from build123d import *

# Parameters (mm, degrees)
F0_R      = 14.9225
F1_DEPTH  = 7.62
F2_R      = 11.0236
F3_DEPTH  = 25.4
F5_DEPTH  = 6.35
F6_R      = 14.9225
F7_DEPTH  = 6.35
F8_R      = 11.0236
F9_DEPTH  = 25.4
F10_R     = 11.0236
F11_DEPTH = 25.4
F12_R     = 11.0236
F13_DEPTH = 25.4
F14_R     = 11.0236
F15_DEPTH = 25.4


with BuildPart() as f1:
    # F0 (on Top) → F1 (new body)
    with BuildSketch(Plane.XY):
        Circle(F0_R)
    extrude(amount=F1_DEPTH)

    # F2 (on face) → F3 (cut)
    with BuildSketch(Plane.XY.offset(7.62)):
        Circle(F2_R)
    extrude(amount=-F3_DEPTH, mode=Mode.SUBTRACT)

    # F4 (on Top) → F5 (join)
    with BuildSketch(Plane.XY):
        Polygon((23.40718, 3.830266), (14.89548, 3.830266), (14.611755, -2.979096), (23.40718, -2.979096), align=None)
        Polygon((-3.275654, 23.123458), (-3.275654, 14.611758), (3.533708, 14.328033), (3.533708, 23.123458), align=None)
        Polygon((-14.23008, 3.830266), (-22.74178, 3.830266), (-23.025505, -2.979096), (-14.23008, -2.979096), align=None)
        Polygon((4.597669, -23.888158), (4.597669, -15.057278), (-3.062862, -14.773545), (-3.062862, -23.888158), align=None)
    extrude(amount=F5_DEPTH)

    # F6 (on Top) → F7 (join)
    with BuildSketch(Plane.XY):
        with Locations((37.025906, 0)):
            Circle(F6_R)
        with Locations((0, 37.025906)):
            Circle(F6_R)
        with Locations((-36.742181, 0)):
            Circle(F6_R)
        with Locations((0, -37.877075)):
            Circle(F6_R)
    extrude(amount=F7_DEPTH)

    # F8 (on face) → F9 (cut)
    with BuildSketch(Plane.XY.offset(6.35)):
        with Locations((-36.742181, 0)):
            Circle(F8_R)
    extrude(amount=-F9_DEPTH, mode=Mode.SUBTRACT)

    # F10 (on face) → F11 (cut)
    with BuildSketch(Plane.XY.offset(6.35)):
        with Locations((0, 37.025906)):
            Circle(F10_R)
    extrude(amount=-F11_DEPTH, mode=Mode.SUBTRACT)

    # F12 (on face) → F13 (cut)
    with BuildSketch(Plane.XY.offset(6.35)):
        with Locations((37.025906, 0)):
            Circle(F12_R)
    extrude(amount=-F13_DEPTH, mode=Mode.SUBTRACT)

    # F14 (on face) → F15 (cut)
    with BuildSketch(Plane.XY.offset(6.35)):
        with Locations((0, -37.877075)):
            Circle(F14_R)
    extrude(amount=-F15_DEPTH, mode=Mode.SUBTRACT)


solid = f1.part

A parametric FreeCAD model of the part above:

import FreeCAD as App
import Part
import Sketcher
from FreeCAD import Vector
Q = App.Units.Quantity

doc = App.newDocument("Part")
body = doc.addObject("PartDesign::Body", "Body")

sketch1 = body.newObject("Sketcher::SketchObject", "Sketch")
sketch1.AttachmentSupport = (doc.getObject("XY_Plane"), [""])
sketch1.MapMode = "FlatFace"
sketch1.addGeometry(Part.Circle(Vector(0, 0, 0), Vector(0, 0, 1), 14.9225), False)
sketch1.addConstraint(Sketcher.Constraint("Coincident", 0, 3, -1, 1))
sketch1.addConstraint(Sketcher.Constraint("Diameter", 0, Q("1.175 in")))
pad1 = body.newObject("PartDesign::Pad", "Pad")
pad1.Profile = sketch1
pad1.Length = Q("0.3 in")

sketch2 = body.newObject("Sketcher::SketchObject", "Sketch001")
sketch2.AttachmentSupport = (doc.getObject("XY_Plane"), [""])
sketch2.MapMode = "FlatFace"
sketch2.AttachmentOffset = App.Placement(Vector(0, 0, 0.3 * 25.4), App.Rotation())
sketch2.addGeometry(Part.Circle(Vector(0, 0, 0), Vector(0, 0, 1), 11.0236), False)
sketch2.addConstraint(Sketcher.Constraint("Coincident", 0, 3, -1, 1))
sketch2.addConstraint(Sketcher.Constraint("Diameter", 0, Q("0.868 in")))
pocket1 = body.newObject("PartDesign::Pocket", "Pocket")
pocket1.Profile = sketch2
pocket1.Length = Q("1 in")

sketch3 = body.newObject("Sketcher::SketchObject", "Sketch002")
sketch3.AttachmentSupport = (doc.getObject("XY_Plane"), [""])
sketch3.MapMode = "FlatFace"
sketch3.addGeometry(Part.LineSegment(Vector(23.40718, 3.830266, 0), Vector(14.89548, 3.830266, 0)), False)
sketch3.addGeometry(Part.LineSegment(Vector(14.89548, 3.830266, 0), Vector(14.611755, -2.979096, 0)), False)
sketch3.addGeometry(Part.LineSegment(Vector(14.611755, -2.979096, 0), Vector(23.40718, -2.979096, 0)), False)
sketch3.addGeometry(Part.LineSegment(Vector(23.40718, -2.979096, 0), Vector(23.40718, 3.830266, 0)), False)
sketch3.addGeometry(Part.LineSegment(Vector(-3.275654, 23.123458, 0), Vector(-3.275654, 14.611758, 0)), False)
sketch3.addGeometry(Part.LineSegment(Vector(-3.275654, 14.611758, 0), Vector(3.533708, 14.328033, 0)), False)
sketch3.addGeometry(Part.LineSegment(Vector(3.533708, 14.328033, 0), Vector(3.533708, 23.123458, 0)), False)
sketch3.addGeometry(Part.LineSegment(Vector(3.533708, 23.123458, 0), Vector(-3.275654, 23.123458, 0)), False)
sketch3.addGeometry(Part.LineSegment(Vector(-14.23008, 3.830266, 0), Vector(-22.74178, 3.830266, 0)), False)
sketch3.addGeometry(Part.LineSegment(Vector(-22.74178, 3.830266, 0), Vector(-23.025505, -2.979096, 0)), False)
sketch3.addGeometry(Part.LineSegment(Vector(-23.025505, -2.979096, 0), Vector(-14.23008, -2.979096, 0)), False)
sketch3.addGeometry(Part.LineSegment(Vector(-14.23008, -2.979096, 0), Vector(-14.23008, 3.830266, 0)), False)
sketch3.addGeometry(Part.LineSegment(Vector(4.597669, -23.888158, 0), Vector(4.597669, -15.057278, 0)), False)
sketch3.addGeometry(Part.LineSegment(Vector(4.597669, -15.057278, 0), Vector(-3.062862, -14.773545, 0)), False)
sketch3.addGeometry(Part.LineSegment(Vector(-3.062862, -14.773545, 0), Vector(-3.062862, -23.888158, 0)), False)
sketch3.addGeometry(Part.LineSegment(Vector(-3.062862, -23.888158, 0), Vector(4.597669, -23.888158, 0)), False)
sketch3.addConstraint(Sketcher.Constraint("Coincident", 0, 2, 1, 1))
sketch3.addConstraint(Sketcher.Constraint("Coincident", 1, 2, 2, 1))
sketch3.addConstraint(Sketcher.Constraint("Coincident", 2, 2, 3, 1))
sketch3.addConstraint(Sketcher.Constraint("Coincident", 3, 2, 0, 1))
sketch3.addConstraint(Sketcher.Constraint("Coincident", 4, 2, 5, 1))
sketch3.addConstraint(Sketcher.Constraint("Coincident", 5, 2, 6, 1))
sketch3.addConstraint(Sketcher.Constraint("Coincident", 6, 2, 7, 1))
sketch3.addConstraint(Sketcher.Constraint("Coincident", 7, 2, 4, 1))
sketch3.addConstraint(Sketcher.Constraint("Coincident", 8, 2, 9, 1))
sketch3.addConstraint(Sketcher.Constraint("Coincident", 9, 2, 10, 1))
sketch3.addConstraint(Sketcher.Constraint("Coincident", 10, 2, 11, 1))
sketch3.addConstraint(Sketcher.Constraint("Coincident", 11, 2, 8, 1))
sketch3.addConstraint(Sketcher.Constraint("Coincident", 12, 2, 13, 1))
sketch3.addConstraint(Sketcher.Constraint("Coincident", 13, 2, 14, 1))
sketch3.addConstraint(Sketcher.Constraint("Coincident", 14, 2, 15, 1))
sketch3.addConstraint(Sketcher.Constraint("Coincident", 15, 2, 12, 1))
sketch3.addConstraint(Sketcher.Constraint("Horizontal", 0))
sketch3.addConstraint(Sketcher.Constraint("Horizontal", 2))
sketch3.addConstraint(Sketcher.Constraint("Vertical", 3))
sketch3.addConstraint(Sketcher.Constraint("Vertical", 4))
sketch3.addConstraint(Sketcher.Constraint("Vertical", 6))
sketch3.addConstraint(Sketcher.Constraint("Horizontal", 7))
sketch3.addConstraint(Sketcher.Constraint("Horizontal", 8))
sketch3.addConstraint(Sketcher.Constraint("Horizontal", 10))
sketch3.addConstraint(Sketcher.Constraint("Vertical", 11))
sketch3.addConstraint(Sketcher.Constraint("Vertical", 12))
sketch3.addConstraint(Sketcher.Constraint("Vertical", 14))
sketch3.addConstraint(Sketcher.Constraint("Horizontal", 15))
sketch3.addConstraint(Sketcher.Constraint("Perpendicular", 1, 5))
sketch3.addConstraint(Sketcher.Constraint("Perpendicular", 5, 9))
sketch3.addConstraint(Sketcher.Constraint("Horizontal", 3, 2, 8, 2))
sketch3.addConstraint(Sketcher.Constraint("Horizontal", 2, 2, 9, 2))
sketch3.addConstraint(Sketcher.Constraint("Equal", 0, 8))
sketch3.addConstraint(Sketcher.Constraint("Equal", 7, 3))
sketch3.addConstraint(Sketcher.Constraint("Equal", 8, 4))
sketch3.addConstraint(Sketcher.Constraint("DistanceX", 0, 2, 0, 1, Q("8.5117 mm")))
sketch3.addConstraint(Sketcher.Constraint("DistanceX", 15, 1, 15, 2, Q("7.660531 mm")))
sketch3.addConstraint(Sketcher.Constraint("DistanceY", 12, 1, 12, 2, Q("8.83088 mm")))
sketch3.addConstraint(Sketcher.Constraint("Distance", 1, Q("6.81527 mm")))
sketch3.addConstraint(Sketcher.Constraint("DistanceX", 2, 1, 2, 2, Q("8.795425 mm")))
sketch3.addConstraint(Sketcher.Constraint("DistanceY", 14, 2, 14, 1, Q("9.114613 mm")))
sketch3.addConstraint(Sketcher.Constraint("DistanceX", -1, 1, 0, 2, Q("14.89548 mm")))
sketch3.addConstraint(Sketcher.Constraint("DistanceX", 8, 2, -1, 1, Q("22.74178 mm")))
sketch3.addConstraint(Sketcher.Constraint("DistanceX", -1, 1, 12, 2, Q("4.597669 mm")))
sketch3.addConstraint(Sketcher.Constraint("DistanceY", 14, 2, -1, 1, Q("23.888158 mm")))
sketch3.addConstraint(Sketcher.Constraint("DistanceX", 4, 2, 1, 2, Q("17.887409 mm")))
sketch3.addConstraint(Sketcher.Constraint("DistanceY", 1, 2, 5, 2, Q("17.307129 mm")))
sketch3.addConstraint(Sketcher.Constraint("DistanceY", 13, 2, 10, 2, Q("11.794449 mm")))
pad2 = body.newObject("PartDesign::Pad", "Pad001")
pad2.Profile = sketch3
pad2.Length = Q("0.25 in")

sketch4 = body.newObject("Sketcher::SketchObject", "Sketch003")
sketch4.AttachmentSupport = (doc.getObject("XY_Plane"), [""])
sketch4.MapMode = "FlatFace"
sketch4.addGeometry(Part.Circle(Vector(37.025906, 0, 0), Vector(0, 0, 1), 14.9225), False)
sketch4.addGeometry(Part.Circle(Vector(0, 37.025906, 0), Vector(0, 0, 1), 14.9225), False)
sketch4.addGeometry(Part.Circle(Vector(-36.742181, 0, 0), Vector(0, 0, 1), 14.9225), False)
sketch4.addGeometry(Part.Circle(Vector(0, -37.877075, 0), Vector(0, 0, 1), 14.9225), False)
sketch4.addConstraint(Sketcher.Constraint("Equal", 0, 1))
sketch4.addConstraint(Sketcher.Constraint("Equal", 1, 2))
sketch4.addConstraint(Sketcher.Constraint("Equal", 2, 3))
sketch4.addConstraint(Sketcher.Constraint("PointOnObject", 0, 3, -1))
sketch4.addConstraint(Sketcher.Constraint("PointOnObject", 1, 3, -2))
sketch4.addConstraint(Sketcher.Constraint("PointOnObject", 2, 3, -1))
sketch4.addConstraint(Sketcher.Constraint("PointOnObject", 3, 3, -2))
sketch4.addConstraint(Sketcher.Constraint("Diameter", 0, Q("1.175 in")))
sketch4.addConstraint(Sketcher.Constraint("DistanceX", 2, 3, -1, 1, Q("36.742181 mm")))
sketch4.addConstraint(Sketcher.Constraint("DistanceY", 3, 3, 1, 3, Q("74.902981 mm")))
sketch4.addConstraint(Sketcher.Constraint("DistanceX", -1, 1, 0, 3, Q("37.025906 mm")))
sketch4.addConstraint(Sketcher.Constraint("DistanceY", -1, 1, 1, 3, Q("37.025906 mm")))
pad3 = body.newObject("PartDesign::Pad", "Pad002")
pad3.Profile = sketch4
pad3.Length = Q("0.25 in")

sketch5 = body.newObject("Sketcher::SketchObject", "Sketch004")
sketch5.AttachmentSupport = (doc.getObject("XY_Plane"), [""])
sketch5.MapMode = "FlatFace"
sketch5.AttachmentOffset = App.Placement(Vector(0, 0, 0.25 * 25.4), App.Rotation())
sketch5.addGeometry(Part.Circle(Vector(-36.742181, 0, 0), Vector(0, 0, 1), 11.0236), False)
sketch5.addConstraint(Sketcher.Constraint("PointOnObject", 0, 3, -1))
sketch5.addConstraint(Sketcher.Constraint("Diameter", 0, Q("0.868 in")))
sketch5.addConstraint(Sketcher.Constraint("DistanceX", 0, 3, -1, 1, Q("36.742181 mm")))
pocket2 = body.newObject("PartDesign::Pocket", "Pocket001")
pocket2.Profile = sketch5
pocket2.Length = Q("1 in")

sketch6 = body.newObject("Sketcher::SketchObject", "Sketch005")
sketch6.AttachmentSupport = (doc.getObject("XY_Plane"), [""])
sketch6.MapMode = "FlatFace"
sketch6.AttachmentOffset = App.Placement(Vector(0, 0, 0.25 * 25.4), App.Rotation())
sketch6.addGeometry(Part.Circle(Vector(0, 37.025906, 0), Vector(0, 0, 1), 11.0236), False)
sketch6.addConstraint(Sketcher.Constraint("PointOnObject", 0, 3, -2))
sketch6.addConstraint(Sketcher.Constraint("Diameter", 0, Q("0.868 in")))
sketch6.addConstraint(Sketcher.Constraint("DistanceY", -1, 1, 0, 3, Q("37.025906 mm")))
pocket3 = body.newObject("PartDesign::Pocket", "Pocket002")
pocket3.Profile = sketch6
pocket3.Length = Q("1 in")

sketch7 = body.newObject("Sketcher::SketchObject", "Sketch006")
sketch7.AttachmentSupport = (doc.getObject("XY_Plane"), [""])
sketch7.MapMode = "FlatFace"
sketch7.AttachmentOffset = App.Placement(Vector(0, 0, 0.25 * 25.4), App.Rotation())
sketch7.addGeometry(Part.Circle(Vector(37.025906, 0, 0), Vector(0, 0, 1), 11.0236), False)
sketch7.addConstraint(Sketcher.Constraint("PointOnObject", 0, 3, -1))
sketch7.addConstraint(Sketcher.Constraint("Diameter", 0, Q("0.868 in")))
sketch7.addConstraint(Sketcher.Constraint("DistanceX", -1, 1, 0, 3, Q("37.025906 mm")))
pocket4 = body.newObject("PartDesign::Pocket", "Pocket003")
pocket4.Profile = sketch7
pocket4.Length = Q("1 in")

sketch8 = body.newObject("Sketcher::SketchObject", "Sketch007")
sketch8.AttachmentSupport = (doc.getObject("XY_Plane"), [""])
sketch8.MapMode = "FlatFace"
sketch8.AttachmentOffset = App.Placement(Vector(0, 0, 0.25 * 25.4), App.Rotation())
sketch8.addGeometry(Part.Circle(Vector(0, -37.877075, 0), Vector(0, 0, 1), 11.0236), False)
sketch8.addConstraint(Sketcher.Constraint("PointOnObject", 0, 3, -2))
sketch8.addConstraint(Sketcher.Constraint("Diameter", 0, Q("0.868 in")))
sketch8.addConstraint(Sketcher.Constraint("DistanceY", 0, 3, -1, 1, Q("37.877075 mm")))
pocket5 = body.newObject("PartDesign::Pocket", "Pocket004")
pocket5.Profile = sketch8
pocket5.Length = Q("1 in")

doc.recompute()
